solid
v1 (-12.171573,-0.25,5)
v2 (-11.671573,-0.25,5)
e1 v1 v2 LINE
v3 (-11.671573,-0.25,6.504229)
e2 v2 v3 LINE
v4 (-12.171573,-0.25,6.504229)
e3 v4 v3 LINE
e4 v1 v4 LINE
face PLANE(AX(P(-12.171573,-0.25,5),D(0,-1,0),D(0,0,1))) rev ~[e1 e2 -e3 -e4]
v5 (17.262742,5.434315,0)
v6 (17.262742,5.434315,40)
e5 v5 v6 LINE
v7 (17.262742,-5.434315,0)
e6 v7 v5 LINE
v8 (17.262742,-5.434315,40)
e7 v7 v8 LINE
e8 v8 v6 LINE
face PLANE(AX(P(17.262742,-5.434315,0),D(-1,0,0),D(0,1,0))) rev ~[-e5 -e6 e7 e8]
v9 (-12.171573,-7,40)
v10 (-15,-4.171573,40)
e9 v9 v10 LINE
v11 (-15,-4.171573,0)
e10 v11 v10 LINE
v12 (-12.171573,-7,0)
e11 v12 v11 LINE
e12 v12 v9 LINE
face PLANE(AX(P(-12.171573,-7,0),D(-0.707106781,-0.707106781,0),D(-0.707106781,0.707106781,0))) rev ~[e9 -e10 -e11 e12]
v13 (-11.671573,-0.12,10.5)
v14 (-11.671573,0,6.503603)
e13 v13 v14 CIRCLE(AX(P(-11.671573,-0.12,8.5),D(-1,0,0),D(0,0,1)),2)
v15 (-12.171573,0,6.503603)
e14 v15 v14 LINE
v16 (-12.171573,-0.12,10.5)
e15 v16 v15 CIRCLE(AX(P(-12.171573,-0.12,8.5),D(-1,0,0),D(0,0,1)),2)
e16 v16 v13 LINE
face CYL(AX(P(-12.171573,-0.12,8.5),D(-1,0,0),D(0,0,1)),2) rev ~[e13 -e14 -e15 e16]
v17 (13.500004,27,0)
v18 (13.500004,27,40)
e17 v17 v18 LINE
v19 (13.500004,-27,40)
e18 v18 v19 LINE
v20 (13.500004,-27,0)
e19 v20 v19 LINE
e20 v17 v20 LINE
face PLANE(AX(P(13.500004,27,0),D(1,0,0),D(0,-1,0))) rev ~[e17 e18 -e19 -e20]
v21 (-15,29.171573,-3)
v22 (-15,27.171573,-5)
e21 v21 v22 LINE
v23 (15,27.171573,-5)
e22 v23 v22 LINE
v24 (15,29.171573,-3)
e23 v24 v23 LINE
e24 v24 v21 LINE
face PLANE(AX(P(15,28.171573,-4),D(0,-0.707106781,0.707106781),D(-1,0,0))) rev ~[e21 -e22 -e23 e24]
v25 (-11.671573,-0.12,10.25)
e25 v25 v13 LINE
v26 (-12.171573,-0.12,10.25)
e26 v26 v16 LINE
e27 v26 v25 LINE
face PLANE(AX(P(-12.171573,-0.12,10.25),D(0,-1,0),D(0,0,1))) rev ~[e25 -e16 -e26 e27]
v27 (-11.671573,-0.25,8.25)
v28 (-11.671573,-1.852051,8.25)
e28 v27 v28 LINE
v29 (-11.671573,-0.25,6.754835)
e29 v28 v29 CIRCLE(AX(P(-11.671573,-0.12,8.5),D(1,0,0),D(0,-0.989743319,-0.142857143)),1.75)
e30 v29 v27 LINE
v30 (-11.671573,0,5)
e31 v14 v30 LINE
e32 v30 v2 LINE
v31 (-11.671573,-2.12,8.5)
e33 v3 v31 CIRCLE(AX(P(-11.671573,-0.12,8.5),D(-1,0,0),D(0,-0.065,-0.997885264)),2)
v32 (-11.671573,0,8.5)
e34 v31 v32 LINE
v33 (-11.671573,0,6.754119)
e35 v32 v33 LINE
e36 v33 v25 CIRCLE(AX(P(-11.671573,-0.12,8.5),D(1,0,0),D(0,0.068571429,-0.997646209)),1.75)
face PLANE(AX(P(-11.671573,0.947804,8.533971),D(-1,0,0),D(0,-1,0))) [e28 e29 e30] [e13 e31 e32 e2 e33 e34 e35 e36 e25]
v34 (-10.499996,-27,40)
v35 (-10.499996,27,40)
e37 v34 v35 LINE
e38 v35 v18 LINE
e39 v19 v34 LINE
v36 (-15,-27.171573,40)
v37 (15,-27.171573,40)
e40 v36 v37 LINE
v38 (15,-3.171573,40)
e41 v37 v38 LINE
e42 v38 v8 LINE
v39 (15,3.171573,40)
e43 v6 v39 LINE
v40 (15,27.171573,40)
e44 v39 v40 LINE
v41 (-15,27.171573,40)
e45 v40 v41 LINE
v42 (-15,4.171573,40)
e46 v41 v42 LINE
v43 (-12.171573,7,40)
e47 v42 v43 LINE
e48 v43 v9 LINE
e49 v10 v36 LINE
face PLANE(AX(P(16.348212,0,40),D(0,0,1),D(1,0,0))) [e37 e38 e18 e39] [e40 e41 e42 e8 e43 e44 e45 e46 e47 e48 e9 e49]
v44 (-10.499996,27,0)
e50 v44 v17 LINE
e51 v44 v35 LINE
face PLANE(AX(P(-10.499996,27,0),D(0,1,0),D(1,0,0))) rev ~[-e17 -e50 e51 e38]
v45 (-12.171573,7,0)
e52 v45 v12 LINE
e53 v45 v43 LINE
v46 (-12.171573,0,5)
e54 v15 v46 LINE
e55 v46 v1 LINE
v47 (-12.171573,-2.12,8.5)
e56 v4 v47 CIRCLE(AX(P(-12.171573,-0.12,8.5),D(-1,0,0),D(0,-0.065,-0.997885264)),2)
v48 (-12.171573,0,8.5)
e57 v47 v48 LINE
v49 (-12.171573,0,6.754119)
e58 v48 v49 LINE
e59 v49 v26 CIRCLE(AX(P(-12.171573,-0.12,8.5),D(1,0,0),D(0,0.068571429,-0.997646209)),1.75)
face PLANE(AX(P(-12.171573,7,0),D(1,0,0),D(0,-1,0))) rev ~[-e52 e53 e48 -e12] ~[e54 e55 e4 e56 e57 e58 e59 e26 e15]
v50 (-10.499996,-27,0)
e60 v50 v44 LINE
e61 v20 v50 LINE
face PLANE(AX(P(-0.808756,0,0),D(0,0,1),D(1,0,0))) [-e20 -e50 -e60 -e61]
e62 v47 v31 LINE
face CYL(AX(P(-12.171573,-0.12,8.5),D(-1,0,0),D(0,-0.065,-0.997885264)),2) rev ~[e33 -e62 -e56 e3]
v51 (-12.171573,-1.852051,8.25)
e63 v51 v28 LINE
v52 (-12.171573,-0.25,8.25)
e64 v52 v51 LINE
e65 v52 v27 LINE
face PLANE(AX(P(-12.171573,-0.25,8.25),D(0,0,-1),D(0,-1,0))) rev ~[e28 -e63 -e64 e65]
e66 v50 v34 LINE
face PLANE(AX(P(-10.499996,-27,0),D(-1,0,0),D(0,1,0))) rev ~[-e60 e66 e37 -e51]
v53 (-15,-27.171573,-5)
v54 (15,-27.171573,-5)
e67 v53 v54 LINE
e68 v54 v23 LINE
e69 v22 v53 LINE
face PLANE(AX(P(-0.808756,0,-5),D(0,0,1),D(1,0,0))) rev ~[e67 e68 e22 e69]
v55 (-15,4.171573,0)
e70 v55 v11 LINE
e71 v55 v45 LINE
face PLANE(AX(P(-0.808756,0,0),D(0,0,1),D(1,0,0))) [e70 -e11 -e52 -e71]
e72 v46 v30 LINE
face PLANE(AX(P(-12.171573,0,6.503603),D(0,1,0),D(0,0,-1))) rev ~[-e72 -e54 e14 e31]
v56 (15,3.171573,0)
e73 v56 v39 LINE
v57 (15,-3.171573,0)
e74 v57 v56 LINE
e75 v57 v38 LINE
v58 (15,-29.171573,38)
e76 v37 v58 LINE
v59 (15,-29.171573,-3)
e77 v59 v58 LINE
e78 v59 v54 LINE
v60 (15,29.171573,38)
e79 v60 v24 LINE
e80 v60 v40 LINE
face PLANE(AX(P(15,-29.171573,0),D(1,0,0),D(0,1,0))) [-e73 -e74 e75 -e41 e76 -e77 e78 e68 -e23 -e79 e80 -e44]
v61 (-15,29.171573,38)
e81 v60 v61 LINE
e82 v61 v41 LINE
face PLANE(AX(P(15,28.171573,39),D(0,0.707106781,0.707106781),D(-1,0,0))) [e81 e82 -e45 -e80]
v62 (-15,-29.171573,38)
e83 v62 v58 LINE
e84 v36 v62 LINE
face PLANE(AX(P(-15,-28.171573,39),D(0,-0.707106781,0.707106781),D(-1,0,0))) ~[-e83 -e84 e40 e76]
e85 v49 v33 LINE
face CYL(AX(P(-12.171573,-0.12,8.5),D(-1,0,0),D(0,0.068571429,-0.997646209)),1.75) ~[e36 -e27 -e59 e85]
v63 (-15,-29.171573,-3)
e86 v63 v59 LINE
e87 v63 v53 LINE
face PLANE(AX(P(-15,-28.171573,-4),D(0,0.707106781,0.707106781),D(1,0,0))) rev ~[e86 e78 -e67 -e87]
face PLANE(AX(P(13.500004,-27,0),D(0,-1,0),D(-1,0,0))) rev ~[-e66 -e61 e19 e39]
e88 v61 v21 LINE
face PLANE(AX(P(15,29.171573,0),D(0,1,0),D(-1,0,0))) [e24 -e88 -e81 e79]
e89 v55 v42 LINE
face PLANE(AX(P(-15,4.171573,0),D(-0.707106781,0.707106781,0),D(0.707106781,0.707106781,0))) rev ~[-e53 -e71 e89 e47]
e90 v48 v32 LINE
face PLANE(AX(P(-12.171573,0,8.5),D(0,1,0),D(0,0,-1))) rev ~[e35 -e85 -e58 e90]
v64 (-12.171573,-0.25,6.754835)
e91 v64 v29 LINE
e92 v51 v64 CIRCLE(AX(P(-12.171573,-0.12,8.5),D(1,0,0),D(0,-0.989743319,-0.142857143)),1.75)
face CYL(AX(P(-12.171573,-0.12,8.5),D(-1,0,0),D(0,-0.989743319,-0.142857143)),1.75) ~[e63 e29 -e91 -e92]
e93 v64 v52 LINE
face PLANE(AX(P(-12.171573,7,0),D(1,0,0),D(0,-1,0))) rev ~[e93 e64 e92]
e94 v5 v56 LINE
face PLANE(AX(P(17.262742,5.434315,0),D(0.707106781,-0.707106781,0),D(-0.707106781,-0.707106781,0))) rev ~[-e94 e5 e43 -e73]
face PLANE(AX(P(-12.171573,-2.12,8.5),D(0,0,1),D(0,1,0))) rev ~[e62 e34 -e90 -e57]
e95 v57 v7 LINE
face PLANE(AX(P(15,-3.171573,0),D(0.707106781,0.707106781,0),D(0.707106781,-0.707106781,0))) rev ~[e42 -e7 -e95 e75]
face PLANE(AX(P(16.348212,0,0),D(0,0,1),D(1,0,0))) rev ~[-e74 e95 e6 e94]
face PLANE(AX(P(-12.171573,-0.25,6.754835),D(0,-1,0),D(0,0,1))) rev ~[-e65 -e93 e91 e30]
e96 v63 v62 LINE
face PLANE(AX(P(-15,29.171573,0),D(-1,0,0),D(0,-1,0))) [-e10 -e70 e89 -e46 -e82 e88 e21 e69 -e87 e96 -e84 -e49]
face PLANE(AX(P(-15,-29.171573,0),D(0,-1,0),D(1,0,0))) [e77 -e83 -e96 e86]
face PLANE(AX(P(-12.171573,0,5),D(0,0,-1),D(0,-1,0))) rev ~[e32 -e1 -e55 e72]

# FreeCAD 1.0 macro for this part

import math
import FreeCAD as App
import Part
import Sketcher


def edges_at(feature, points):
    """Names of the edges that pass closest to the given points."""
    edges = feature.Shape.Edges
    near = lambda p: min(range(len(edges)), key=lambda i: edges[i].distToShape(Part.Vertex(*p))[0])
    return sorted({f"Edge{near(p) + 1}" for p in points})

doc = App.newDocument("Part")
body = doc.addObject("PartDesign::Body", "Body")

# Sketch on XY plane
sketch1 = body.newObject("Sketcher::SketchObject", "Sketch")
sketch1.AttachmentSupport = (doc.getObject("XY_Plane"), [""])
sketch1.MapMode = "FlatFace"
sketch1.addGeometry([
    Part.LineSegment(App.Vector(17.262742, 5.434315, 0), App.Vector(15, 3.171573, 0)),  # 0
    Part.LineSegment(App.Vector(15, 3.171573, 0), App.Vector(15, 29.171573, 0)),  # 1
    Part.LineSegment(App.Vector(15, 29.171573, 0), App.Vector(-15, 29.171573, 0)),  # 2
    Part.LineSegment(App.Vector(-15, 29.171573, 0), App.Vector(-15, 4.171573, 0)),  # 3
    Part.LineSegment(App.Vector(-15, 4.171573, 0), App.Vector(-12.171573, 7, 0)),  # 4
    Part.LineSegment(App.Vector(-12.171573, 7, 0), App.Vector(-12.171573, -7, 0)),  # 5
    Part.LineSegment(App.Vector(-12.171573, -7, 0), App.Vector(-15, -4.171573, 0)),  # 6
    Part.LineSegment(App.Vector(-15, -4.171573, 0), App.Vector(-15, -29.171573, 0)),  # 7
    Part.LineSegment(App.Vector(-15, -29.171573, 0), App.Vector(15, -29.171573, 0)),  # 8
    Part.LineSegment(App.Vector(15, -29.171573, 0), App.Vector(15, -3.171573, 0)),  # 9
    Part.LineSegment(App.Vector(15, -3.171573, 0), App.Vector(17.262742, -5.434315, 0)),  # 10
    Part.LineSegment(App.Vector(17.262742, -5.434315, 0), App.Vector(17.262742, 5.434315, 0)),  # 11
    Part.LineSegment(App.Vector(-10.499996, -27, 0), App.Vector(-10.499996, 27, 0)),  # 12
    Part.LineSegment(App.Vector(-10.499996, 27, 0), App.Vector(13.500004, 27, 0)),  # 13
    Part.LineSegment(App.Vector(13.500004, 27, 0), App.Vector(13.500004, -27, 0)),  # 14
    Part.LineSegment(App.Vector(13.500004, -27, 0), App.Vector(-10.499996, -27, 0)),  # 15
], False)
sketch1.addConstraint([
    Sketcher.Constraint("Coincident", 0, 2, 1, 1),
    Sketcher.Constraint("Coincident", 1, 2, 2, 1),
    Sketcher.Constraint("Coincident", 2, 2, 3, 1),
    Sketcher.Constraint("Coincident", 3, 2, 4, 1),
    Sketcher.Constraint("Coincident", 4, 2, 5, 1),
    Sketcher.Constraint("Coincident", 5, 2, 6, 1),
    Sketcher.Constraint("Coincident", 6, 2, 7, 1),
    Sketcher.Constraint("Coincident", 7, 2, 8, 1),
    Sketcher.Constraint("Coincident", 8, 2, 9, 1),
    Sketcher.Constraint("Coincident", 9, 2, 10, 1),
    Sketcher.Constraint("Coincident", 10, 2, 11, 1),
    Sketcher.Constraint("Coincident", 11, 2, 0, 1),
    Sketcher.Constraint("Coincident", 12, 2, 13, 1),
    Sketcher.Constraint("Coincident", 13, 2, 14, 1),
    Sketcher.Constraint("Coincident", 14, 2, 15, 1),
    Sketcher.Constraint("Coincident", 15, 2, 12, 1),
    Sketcher.Constraint("Vertical", 1),
    Sketcher.Constraint("Horizontal", 2),
    Sketcher.Constraint("Vertical", 3),
    Sketcher.Constraint("Vertical", 5),
    Sketcher.Constraint("Vertical", 7),
    Sketcher.Constraint("Horizontal", 8),
    Sketcher.Constraint("Vertical", 9),
    Sketcher.Constraint("Vertical", 11),
    Sketcher.Constraint("Vertical", 12),
    Sketcher.Constraint("Horizontal", 13),
    Sketcher.Constraint("Vertical", 14),
    Sketcher.Constraint("Horizontal", 15),
    Sketcher.Constraint("Symmetric", 1, 2, 7, 2, -1, 1),
    Sketcher.Constraint("Symmetric", 3, 2, 6, 2, -1),
    Sketcher.Constraint("Symmetric", 0, 2, 9, 2, -1),
    Sketcher.Constraint("Parallel", 0, 4),
    Sketcher.Constraint("Perpendicular", 4, 6),
    Sketcher.Constraint("Parallel", 6, 10),
    Sketcher.Constraint("Equal", 4, 6),
    Sketcher.Constraint("DistanceX", 2, 2, 2, 1, 30.0),
    Sketcher.Constraint("DistanceX", 13, 1, 13, 2, 24.0),
    Sketcher.Constraint("DistanceY", 1, 1, 1, 2, 26.0),
    Sketcher.Constraint("DistanceY", 3, 2, 3, 1, 25.0),
    Sketcher.Constraint("DistanceY", 5, 2, 5, 1, 14.0),
    Sketcher.Constraint("DistanceY", 12, 1, 12, 2, 54.0),
    Sketcher.Constraint("Distance", 4, 4.0),
    Sketcher.Constraint("DistanceY", -1, 1, 12, 2, 27.0),
    Sketcher.Constraint("Distance", 0, 3.2),
    Sketcher.Constraint("DistanceX", 12, 2, -1, 1, 10.499996),
])
pad1 = body.newObject("PartDesign::Pad", "Pad")
pad1.Profile = sketch1
pad1.Length = 40

# Sketch on XY plane
sketch2 = body.newObject("Sketcher::SketchObject", "Sketch001")
sketch2.AttachmentSupport = (doc.getObject("XY_Plane"), [""])
sketch2.MapMode = "FlatFace"
sketch2.addGeometry([
    Part.LineSegment(App.Vector(-15, 29.171573, 0), App.Vector(-15, -29.171573, 0)),
    Part.LineSegment(App.Vector(-15, -29.171573, 0), App.Vector(15, -29.171573, 0)),
    Part.LineSegment(App.Vector(15, -29.171573, 0), App.Vector(15, 29.171573, 0)),
    Part.LineSegment(App.Vector(15, 29.171573, 0), App.Vector(-15, 29.171573, 0)),
], False)
sketch2.addConstraint([
    Sketcher.Constraint("Coincident", 0, 2, 1, 1),
    Sketcher.Constraint("Coincident", 1, 2, 2, 1),
    Sketcher.Constraint("Coincident", 2, 2, 3, 1),
    Sketcher.Constraint("Coincident", 3, 2, 0, 1),
    Sketcher.Constraint("Vertical", 0),
    Sketcher.Constraint("Horizontal", 1),
    Sketcher.Constraint("Vertical", 2),
    Sketcher.Constraint("Horizontal", 3),
    Sketcher.Constraint("Symmetric", 0, 2, 2, 2, -1, 1),
    Sketcher.Constraint("DistanceX", 1, 1, 1, 2, 30.0),
    Sketcher.Constraint("DistanceY", 0, 2, 0, 1, 58.343146),
])
pad2 = body.newObject("PartDesign::Pad", "Pad001")
pad2.Profile = sketch2
pad2.Length = 5
pad2.Reversed = True
doc.recompute()

chamfer = body.newObject("PartDesign::Chamfer", "Chamfer")
chamfer.Base = (pad2, edges_at(pad2, [
    (0, -29.172, -5),
    (0, 29.172, -5),
    (0, -29.172, 40),
    (0, 29.172, 40),
]))
chamfer.Size = 2

# Sketch on YZ plane
sketch3 = body.newObject("Sketcher::SketchObject", "Sketch002")
sketch3.AttachmentSupport = (doc.getObject("YZ_Plane"), [""])
sketch3.MapMode = "FlatFace"
sketch3.AttachmentOffset = App.Placement(App.Vector(0, 0, -12.171573), App.Rotation())
sketch3.addGeometry([
    Part.LineSegment(App.Vector(-0.12, 10.25, 0), App.Vector(-0.12, 10.5, 0)),  # 0
    Part.ArcOfCircle(Part.Circle(App.Vector(-0.12, 8.5, 0), App.Vector(0, 0, 1), 2), math.radians(-86.560187), math.radians(90)),  # 1
    Part.LineSegment(App.Vector(0, 6.503603, 0), App.Vector(0, 5, 0)),  # 2
    Part.LineSegment(App.Vector(0, 5, 0), App.Vector(-0.25, 5, 0)),  # 3
    Part.LineSegment(App.Vector(-0.25, 5, 0), App.Vector(-0.25, 6.504229, 0)),  # 4
    Part.ArcOfCircle(Part.Circle(App.Vector(-0.12, 8.5, 0), App.Vector(0, 0, 1), 2), math.radians(180), math.radians(266.273147)),  # 5
    Part.LineSegment(App.Vector(-2.12, 8.5, 0), App.Vector(0, 8.5, 0)),  # 6
    Part.LineSegment(App.Vector(0, 8.5, 0), App.Vector(0, 6.754119, 0)),  # 7
    Part.ArcOfCircle(Part.Circle(App.Vector(-0.12, 8.5, 0), App.Vector(0, 0, 1), 1.75), math.radians(-86.068061), math.radians(90)),  # 8
    Part.LineSegment(App.Vector(-0.25, 6.754835, 0), App.Vector(-0.25, 8.25, 0)),  # 9
    Part.LineSegment(App.Vector(-0.25, 8.25, 0), App.Vector(-1.852051, 8.25, 0)),  # 10
    Part.ArcOfCircle(Part.Circle(App.Vector(-0.12, 8.5, 0), App.Vector(0, 0, 1), 1.75), math.radians(-171.786789), math.radians(-94.260182)),  # 11
], False)
sketch3.addConstraint([
    Sketcher.Constraint("Coincident", 0, 2, 1, 2),
    Sketcher.Constraint("Coincident", 1, 1, 2, 1),
    Sketcher.Constraint("Coincident", 2, 2, 3, 1),
    Sketcher.Constraint("Coincident", 3, 2, 4, 1),
    Sketcher.Constraint("Coincident", 4, 2, 5, 2),
    Sketcher.Constraint("Coincident", 5, 1, 6, 1),
    Sketcher.Constraint("Coincident", 6, 2, 7, 1),
    Sketcher.Constraint("Coincident", 7, 2, 8, 1),
    Sketcher.Constraint("Coincident", 8, 2, 0, 1),
    Sketcher.Constraint("Coincident", 9, 2, 10, 1),
    Sketcher.Constraint("Coincident", 10, 2, 11, 1),
    Sketcher.Constraint("Coincident", 11, 2, 9, 1),
    Sketcher.Constraint("Vertical", 0),
    Sketcher.Constraint("Vertical", 2),
    Sketcher.Constraint("Horizontal", 3),
    Sketcher.Constraint("Vertical", 4),
    Sketcher.Constraint("Horizontal", 6),
    Sketcher.Constraint("Vertical", 7),
    Sketcher.Constraint("Vertical", 9),
    Sketcher.Constraint("Horizontal", 10),
    Sketcher.Constraint("Coincident", 5, 3, 1, 3),
    Sketcher.Constraint("Coincident", 8, 3, 1, 3),
    Sketcher.Constraint("Coincident", 11, 3, 1, 3),
    Sketcher.Constraint("Equal", 1, 5),
    Sketcher.Constraint("Equal", 8, 11),
    Sketcher.Constraint("PointOnObject", 1, 1, -2),
    Sketcher.Constraint("PointOnObject", 6, 2, -2),
    Sketcher.Constraint("Horizontal", 11, 3, 5, 1),
    Sketcher.Constraint("Vertical", 11, 3, 0, 2),
    Sketcher.Constraint("Vertical", 4, 2, 9, 2),
    Sketcher.Constraint("Equal", 3, 0),
    Sketcher.Constraint("Radius", 1, 2.0),
    Sketcher.Constraint("Radius", 8, 1.75),
    Sketcher.Constraint("DistanceY", -1, 1, 2, 2, 5.0),
    Sketcher.Constraint("DistanceX", 6, 1, 6, 2, 2.12),
    Sketcher.Constraint("DistanceY", -1, 1, 1, 3, 8.5),
    Sketcher.Constraint("DistanceY", -1, 1, 9, 2, 8.25),
])
pocket1 = body.newObject("PartDesign::Pocket", "Pocket")
pocket1.Profile = sketch3
pocket1.Length = 0.5
pocket1.Reversed = True

doc.recompute()
